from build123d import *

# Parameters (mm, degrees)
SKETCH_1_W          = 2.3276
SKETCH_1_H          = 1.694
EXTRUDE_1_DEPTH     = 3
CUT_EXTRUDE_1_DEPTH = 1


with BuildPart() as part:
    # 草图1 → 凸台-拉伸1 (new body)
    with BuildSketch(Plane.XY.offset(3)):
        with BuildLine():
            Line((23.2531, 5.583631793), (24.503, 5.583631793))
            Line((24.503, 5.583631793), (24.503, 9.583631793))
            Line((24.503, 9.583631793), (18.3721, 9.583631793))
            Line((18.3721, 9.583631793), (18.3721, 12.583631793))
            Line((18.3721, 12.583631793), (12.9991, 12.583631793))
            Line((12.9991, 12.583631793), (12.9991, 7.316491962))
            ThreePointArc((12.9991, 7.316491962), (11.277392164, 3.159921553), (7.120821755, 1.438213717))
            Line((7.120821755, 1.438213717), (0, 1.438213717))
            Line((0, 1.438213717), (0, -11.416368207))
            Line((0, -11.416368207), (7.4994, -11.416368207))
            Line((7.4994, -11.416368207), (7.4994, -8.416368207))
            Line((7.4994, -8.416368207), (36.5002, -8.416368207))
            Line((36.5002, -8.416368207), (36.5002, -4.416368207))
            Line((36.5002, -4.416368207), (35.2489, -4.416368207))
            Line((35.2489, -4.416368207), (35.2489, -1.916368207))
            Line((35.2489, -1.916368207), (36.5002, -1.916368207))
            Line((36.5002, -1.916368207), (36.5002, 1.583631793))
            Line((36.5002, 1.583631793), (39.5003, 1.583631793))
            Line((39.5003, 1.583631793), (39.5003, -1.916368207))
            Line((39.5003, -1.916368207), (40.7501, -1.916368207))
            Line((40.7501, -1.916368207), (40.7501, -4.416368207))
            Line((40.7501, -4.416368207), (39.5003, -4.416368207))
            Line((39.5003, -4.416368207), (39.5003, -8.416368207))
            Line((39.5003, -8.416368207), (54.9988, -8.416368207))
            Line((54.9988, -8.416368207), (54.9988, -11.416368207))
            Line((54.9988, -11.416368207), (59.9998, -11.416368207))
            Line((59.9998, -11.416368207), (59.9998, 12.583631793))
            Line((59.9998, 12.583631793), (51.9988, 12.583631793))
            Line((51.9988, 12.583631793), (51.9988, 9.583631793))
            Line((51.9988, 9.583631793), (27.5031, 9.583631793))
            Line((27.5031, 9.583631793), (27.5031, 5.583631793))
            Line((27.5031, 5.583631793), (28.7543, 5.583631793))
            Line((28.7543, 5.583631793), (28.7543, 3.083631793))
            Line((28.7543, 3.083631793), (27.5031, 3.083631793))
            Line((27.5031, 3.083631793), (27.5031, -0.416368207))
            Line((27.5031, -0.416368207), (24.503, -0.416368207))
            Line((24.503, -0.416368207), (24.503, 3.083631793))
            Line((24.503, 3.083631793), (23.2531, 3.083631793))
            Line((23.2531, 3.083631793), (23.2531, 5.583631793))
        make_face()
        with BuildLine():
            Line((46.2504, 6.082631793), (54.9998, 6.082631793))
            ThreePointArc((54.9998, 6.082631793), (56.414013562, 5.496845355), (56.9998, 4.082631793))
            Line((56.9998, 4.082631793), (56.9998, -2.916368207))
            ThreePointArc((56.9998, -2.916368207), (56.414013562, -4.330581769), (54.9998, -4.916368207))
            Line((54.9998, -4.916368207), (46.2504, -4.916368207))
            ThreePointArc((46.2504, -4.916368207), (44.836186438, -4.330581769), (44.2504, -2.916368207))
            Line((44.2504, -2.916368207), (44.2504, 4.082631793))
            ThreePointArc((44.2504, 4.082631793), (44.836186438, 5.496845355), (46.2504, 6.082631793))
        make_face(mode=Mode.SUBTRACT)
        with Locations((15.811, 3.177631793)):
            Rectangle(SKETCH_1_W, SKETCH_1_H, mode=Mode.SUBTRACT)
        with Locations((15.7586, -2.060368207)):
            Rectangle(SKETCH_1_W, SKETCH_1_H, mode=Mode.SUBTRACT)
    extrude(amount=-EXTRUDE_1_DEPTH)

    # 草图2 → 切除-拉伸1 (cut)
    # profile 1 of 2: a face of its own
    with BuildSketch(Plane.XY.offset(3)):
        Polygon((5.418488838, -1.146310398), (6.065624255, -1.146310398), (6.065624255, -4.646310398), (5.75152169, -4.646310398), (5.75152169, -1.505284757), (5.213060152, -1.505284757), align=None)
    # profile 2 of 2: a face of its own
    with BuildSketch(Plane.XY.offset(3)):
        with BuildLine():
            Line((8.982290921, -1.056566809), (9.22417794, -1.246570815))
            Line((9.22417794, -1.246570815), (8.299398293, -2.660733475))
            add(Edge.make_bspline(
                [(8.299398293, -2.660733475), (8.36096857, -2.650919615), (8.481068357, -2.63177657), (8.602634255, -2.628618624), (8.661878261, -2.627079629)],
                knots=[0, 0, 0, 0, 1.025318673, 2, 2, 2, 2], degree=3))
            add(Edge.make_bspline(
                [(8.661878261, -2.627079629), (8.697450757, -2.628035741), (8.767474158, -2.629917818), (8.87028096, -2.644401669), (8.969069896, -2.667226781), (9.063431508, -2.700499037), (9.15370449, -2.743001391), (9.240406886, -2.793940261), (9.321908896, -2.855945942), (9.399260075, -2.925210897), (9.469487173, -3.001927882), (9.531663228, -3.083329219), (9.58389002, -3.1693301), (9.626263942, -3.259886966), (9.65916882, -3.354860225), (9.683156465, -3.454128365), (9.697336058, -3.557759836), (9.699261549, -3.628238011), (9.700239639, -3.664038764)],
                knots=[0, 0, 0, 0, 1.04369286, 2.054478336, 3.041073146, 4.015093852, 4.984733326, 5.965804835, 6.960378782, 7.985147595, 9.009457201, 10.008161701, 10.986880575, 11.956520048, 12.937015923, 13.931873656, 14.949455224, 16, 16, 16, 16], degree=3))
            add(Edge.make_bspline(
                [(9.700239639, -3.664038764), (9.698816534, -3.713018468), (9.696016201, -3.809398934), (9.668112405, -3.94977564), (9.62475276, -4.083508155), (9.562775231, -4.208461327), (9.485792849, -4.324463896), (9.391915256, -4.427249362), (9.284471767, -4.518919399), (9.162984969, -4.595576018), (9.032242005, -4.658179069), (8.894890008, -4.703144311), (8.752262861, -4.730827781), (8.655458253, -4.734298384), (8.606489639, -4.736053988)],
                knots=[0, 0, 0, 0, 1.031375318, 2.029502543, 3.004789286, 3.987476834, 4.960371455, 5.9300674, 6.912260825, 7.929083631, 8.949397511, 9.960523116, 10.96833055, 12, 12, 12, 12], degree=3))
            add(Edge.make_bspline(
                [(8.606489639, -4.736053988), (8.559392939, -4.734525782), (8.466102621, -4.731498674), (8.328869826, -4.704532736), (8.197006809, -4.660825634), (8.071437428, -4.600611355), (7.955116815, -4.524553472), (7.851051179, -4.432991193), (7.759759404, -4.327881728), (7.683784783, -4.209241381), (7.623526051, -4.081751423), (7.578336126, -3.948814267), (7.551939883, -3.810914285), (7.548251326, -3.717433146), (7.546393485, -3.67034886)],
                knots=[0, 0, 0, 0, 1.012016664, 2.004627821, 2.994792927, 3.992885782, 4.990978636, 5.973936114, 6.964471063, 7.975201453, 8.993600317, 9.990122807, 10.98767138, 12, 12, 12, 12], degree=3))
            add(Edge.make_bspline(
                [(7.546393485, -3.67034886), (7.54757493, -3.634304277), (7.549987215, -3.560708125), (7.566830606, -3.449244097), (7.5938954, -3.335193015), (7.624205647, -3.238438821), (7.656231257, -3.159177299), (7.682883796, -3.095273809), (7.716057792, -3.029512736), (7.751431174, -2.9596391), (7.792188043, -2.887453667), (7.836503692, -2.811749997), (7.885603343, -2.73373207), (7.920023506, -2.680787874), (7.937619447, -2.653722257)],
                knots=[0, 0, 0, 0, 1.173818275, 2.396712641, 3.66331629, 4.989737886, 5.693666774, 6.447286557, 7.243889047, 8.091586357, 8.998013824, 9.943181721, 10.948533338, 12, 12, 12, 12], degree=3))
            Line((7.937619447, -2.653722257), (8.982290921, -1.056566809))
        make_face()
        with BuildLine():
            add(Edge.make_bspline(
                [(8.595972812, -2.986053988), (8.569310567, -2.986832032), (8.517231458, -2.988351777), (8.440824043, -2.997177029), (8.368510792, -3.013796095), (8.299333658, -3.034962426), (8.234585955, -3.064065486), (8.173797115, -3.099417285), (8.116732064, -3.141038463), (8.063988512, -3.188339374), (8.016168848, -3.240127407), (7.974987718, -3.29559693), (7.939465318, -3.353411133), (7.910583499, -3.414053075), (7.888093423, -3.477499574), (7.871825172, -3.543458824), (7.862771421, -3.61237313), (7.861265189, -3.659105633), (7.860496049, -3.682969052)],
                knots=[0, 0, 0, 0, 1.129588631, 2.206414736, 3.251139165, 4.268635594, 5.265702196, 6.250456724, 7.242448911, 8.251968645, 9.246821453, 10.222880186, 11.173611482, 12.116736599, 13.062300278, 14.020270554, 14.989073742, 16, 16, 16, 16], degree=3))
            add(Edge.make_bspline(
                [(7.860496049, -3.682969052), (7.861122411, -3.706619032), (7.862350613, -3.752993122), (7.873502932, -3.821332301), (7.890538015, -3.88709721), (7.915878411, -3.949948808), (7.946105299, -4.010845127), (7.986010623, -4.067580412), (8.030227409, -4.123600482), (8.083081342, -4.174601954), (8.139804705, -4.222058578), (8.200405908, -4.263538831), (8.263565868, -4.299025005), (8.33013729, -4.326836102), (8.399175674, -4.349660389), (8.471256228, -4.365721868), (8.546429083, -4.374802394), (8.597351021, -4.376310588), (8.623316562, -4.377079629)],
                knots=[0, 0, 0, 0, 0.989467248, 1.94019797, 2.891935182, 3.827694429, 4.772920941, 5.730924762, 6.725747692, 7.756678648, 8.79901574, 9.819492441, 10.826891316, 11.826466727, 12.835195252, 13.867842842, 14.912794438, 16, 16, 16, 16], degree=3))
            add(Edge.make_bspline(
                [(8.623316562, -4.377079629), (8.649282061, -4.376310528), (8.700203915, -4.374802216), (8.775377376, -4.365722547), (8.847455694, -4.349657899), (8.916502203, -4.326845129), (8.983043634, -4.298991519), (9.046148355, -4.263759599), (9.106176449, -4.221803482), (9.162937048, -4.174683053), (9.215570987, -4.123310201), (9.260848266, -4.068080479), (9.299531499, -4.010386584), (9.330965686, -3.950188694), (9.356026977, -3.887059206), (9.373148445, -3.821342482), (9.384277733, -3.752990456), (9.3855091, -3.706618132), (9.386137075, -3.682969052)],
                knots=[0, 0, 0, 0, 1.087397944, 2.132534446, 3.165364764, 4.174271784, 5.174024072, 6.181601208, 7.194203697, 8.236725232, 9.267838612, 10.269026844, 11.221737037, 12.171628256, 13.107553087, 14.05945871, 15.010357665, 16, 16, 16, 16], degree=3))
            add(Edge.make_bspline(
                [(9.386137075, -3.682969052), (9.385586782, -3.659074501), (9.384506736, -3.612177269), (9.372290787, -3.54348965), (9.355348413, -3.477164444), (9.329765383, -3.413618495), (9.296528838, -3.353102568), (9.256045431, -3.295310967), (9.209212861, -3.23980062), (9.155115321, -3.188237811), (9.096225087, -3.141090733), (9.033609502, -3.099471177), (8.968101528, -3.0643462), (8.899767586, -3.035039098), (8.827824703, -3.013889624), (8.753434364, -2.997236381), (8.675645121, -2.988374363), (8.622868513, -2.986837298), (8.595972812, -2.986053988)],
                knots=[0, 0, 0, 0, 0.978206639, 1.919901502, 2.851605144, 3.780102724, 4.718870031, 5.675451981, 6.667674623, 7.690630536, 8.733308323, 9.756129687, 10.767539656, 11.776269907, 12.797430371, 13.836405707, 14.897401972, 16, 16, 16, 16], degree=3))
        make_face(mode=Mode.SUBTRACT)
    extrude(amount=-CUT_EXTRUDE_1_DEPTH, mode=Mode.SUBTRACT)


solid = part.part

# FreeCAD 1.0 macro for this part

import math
import FreeCAD as App
import Part
import Sketcher
Q = App.Units.Quantity


def add_polygon(sketch, points):
    """Adds a closed chain of lines whose ends are joined by coincident constraints."""
    first, n = sketch.GeometryCount, len(points)
    for a, b in zip(points, points[1:] + points[:1]):
        sketch.addGeometry(Part.LineSegment(App.Vector(*a, 0), App.Vector(*b, 0)), False)
    for i in range(n):
        sketch.addConstraint(Sketcher.Constraint("Coincident", first + i, 2, first + (i + 1) % n, 1))

doc = App.newDocument("Part")
params = doc.addObject("Spreadsheet::Sheet", "Params")
for row, (alias, value) in enumerate([
    ("sketch1_radius", "2 mm"),
    ("sketch1_height", "4 mm"),
    ("sketch1_height2", "3 mm"),
    ("sketch1_height3", "24 mm"),
    ("sketch1_height4", "2.5 mm"),
    ("pad1_length", "3 mm"),
    ("sketch2_height", "3.5 mm"),
    ("pocket1_length", "1 mm"),
], start=1):
    params.set(f"A{row}", alias)
    params.set(f"B{row}", "=" + value)
    params.setAlias(f"B{row}", alias)

body = doc.addObject("PartDesign::Body", "Body")

# Sketch on XY plane
sketch1 = body.newObject("Sketcher::SketchObject", "Sketch")
sketch1.AttachmentSupport = (doc.getObject("XY_Plane"), [""])
sketch1.MapMode = "FlatFace"
sketch1.AttachmentOffset = App.Placement(App.Vector(0, 0, 3), App.Rotation())
sketch1.addGeometry(Part.LineSegment(App.Vector(23.3, 5.6, 0), App.Vector(24.5, 5.6, 0)), False)  # 0
sketch1.addGeometry(Part.LineSegment(App.Vector(24.5, 5.6, 0), App.Vector(24.5, 9.6, 0)), False)  # 1
sketch1.addGeometry(Part.LineSegment(App.Vector(24.5, 9.6, 0), App.Vector(18.4, 9.6, 0)), False)  # 2
sketch1.addGeometry(Part.LineSegment(App.Vector(18.4, 9.6, 0), App.Vector(18.4, 12.6, 0)), False)  # 3
sketch1.addGeometry(Part.LineSegment(App.Vector(18.4, 12.6, 0), App.Vector(13, 12.6, 0)), False)  # 4
sketch1.addGeometry(Part.LineSegment(App.Vector(13, 12.6, 0), App.Vector(13, 7.3, 0)), False)  # 5
sketch1.addGeometry(Part.ArcOfCircle(Part.Circle(App.Vector(7.1, 7.3, 0), App.Vector(0, 0, 1), 5.9), math.radians(-90), math.radians(0)), False)  # 6
sketch1.addGeometry(Part.LineSegment(App.Vector(7.1, 1.4, 0), App.Vector(0, 1.4, 0)), False)  # 7
sketch1.addGeometry(Part.LineSegment(App.Vector(0, 1.4, 0), App.Vector(0, -11.4, 0)), False)  # 8
sketch1.addGeometry(Part.LineSegment(App.Vector(0, -11.4, 0), App.Vector(7.5, -11.4, 0)), False)  # 9
sketch1.addGeometry(Part.LineSegment(App.Vector(7.5, -11.4, 0), App.Vector(7.5, -8.4, 0)), False)  # 10
sketch1.addGeometry(Part.LineSegment(App.Vector(7.5, -8.4, 0), App.Vector(36.5, -8.4, 0)), False)  # 11
sketch1.addGeometry(Part.LineSegment(App.Vector(36.5, -8.4, 0), App.Vector(36.5, -4.4, 0)), False)  # 12
sketch1.addGeometry(Part.LineSegment(App.Vector(36.5, -4.4, 0), App.Vector(35.2, -4.4, 0)), False)  # 13
sketch1.addGeometry(Part.LineSegment(App.Vector(35.2, -4.4, 0), App.Vector(35.2, -1.9, 0)), False)  # 14
sketch1.addGeometry(Part.LineSegment(App.Vector(35.2, -1.9, 0), App.Vector(36.5, -1.9, 0)), False)  # 15
sketch1.addGeometry(Part.LineSegment(App.Vector(36.5, -1.9, 0), App.Vector(36.5, 1.6, 0)), False)  # 16
sketch1.addGeometry(Part.LineSegment(App.Vector(36.5, 1.6, 0), App.Vector(39.5, 1.6, 0)), False)  # 17
sketch1.addGeometry(Part.LineSegment(App.Vector(39.5, 1.6, 0), App.Vector(39.5, -1.9, 0)), False)  # 18
sketch1.addGeometry(Part.LineSegment(App.Vector(39.5, -1.9, 0), App.Vector(40.8, -1.9, 0)), False)  # 19
sketch1.addGeometry(Part.LineSegment(App.Vector(40.8, -1.9, 0), App.Vector(40.8, -4.4, 0)), False)  # 20
sketch1.addGeometry(Part.LineSegment(App.Vector(40.8, -4.4, 0), App.Vector(39.5, -4.4, 0)), False)  # 21
sketch1.addGeometry(Part.LineSegment(App.Vector(39.5, -4.4, 0), App.Vector(39.5, -8.4, 0)), False)  # 22
sketch1.addGeometry(Part.LineSegment(App.Vector(39.5, -8.4, 0), App.Vector(55, -8.4, 0)), False)  # 23
sketch1.addGeometry(Part.LineSegment(App.Vector(55, -8.4, 0), App.Vector(55, -11.4, 0)), False)  # 24
sketch1.addGeometry(Part.LineSegment(App.Vector(55, -11.4, 0), App.Vector(60, -11.4, 0)), False)  # 25
sketch1.addGeometry(Part.LineSegment(App.Vector(60, -11.4, 0), App.Vector(60, 12.6, 0)), False)  # 26
sketch1.addGeometry(Part.LineSegment(App.Vector(60, 12.6, 0), App.Vector(52, 12.6, 0)), False)  # 27
sketch1.addGeometry(Part.LineSegment(App.Vector(52, 12.6, 0), App.Vector(52, 9.6, 0)), False)  # 28
sketch1.addGeometry(Part.LineSegment(App.Vector(52, 9.6, 0), App.Vector(27.5, 9.6, 0)), False)  # 29
sketch1.addGeometry(Part.LineSegment(App.Vector(27.5, 9.6, 0), App.Vector(27.5, 5.6, 0)), False)  # 30
sketch1.addGeometry(Part.LineSegment(App.Vector(27.5, 5.6, 0), App.Vector(28.8, 5.6, 0)), False)  # 31
sketch1.addGeometry(Part.LineSegment(App.Vector(28.8, 5.6, 0), App.Vector(28.8, 3.1, 0)), False)  # 32
sketch1.addGeometry(Part.LineSegment(App.Vector(28.8, 3.1, 0), App.Vector(27.5, 3.1, 0)), False)  # 33
sketch1.addGeometry(Part.LineSegment(App.Vector(27.5, 3.1, 0), App.Vector(27.5, -0.4, 0)), False)  # 34
sketch1.addGeometry(Part.LineSegment(App.Vector(27.5, -0.4, 0), App.Vector(24.5, -0.4, 0)), False)  # 35
sketch1.addGeometry(Part.LineSegment(App.Vector(24.5, -0.4, 0), App.Vector(24.5, 3.1, 0)), False)  # 36
sketch1.addGeometry(Part.LineSegment(App.Vector(24.5, 3.1, 0), App.Vector(23.3, 3.1, 0)), False)  # 37
sketch1.addGeometry(Part.LineSegment(App.Vector(23.3, 3.1, 0), App.Vector(23.3, 5.6, 0)), False)  # 38
add_polygon(sketch1, [(16.9, -2.9), (14.6, -2.9), (14.6, -1.2), (16.9, -1.2)])  # lines 39-42
add_polygon(sketch1, [(17, 2.3), (14.6, 2.3), (14.6, 4), (17, 4)])  # lines 43-46
sketch1.addGeometry(Part.ArcOfCircle(Part.Circle(App.Vector(46.3, 4.1, 0), App.Vector(0, 0, 1), 2), math.radians(90), math.radians(180)), False)  # 47
sketch1.addGeometry(Part.LineSegment(App.Vector(46.3, 6.1, 0), App.Vector(55, 6.1, 0)), False)  # 48
sketch1.addGeometry(Part.ArcOfCircle(Part.Circle(App.Vector(55, 4.1, 0), App.Vector(0, 0, 1), 2), math.radians(0), math.radians(90)), False)  # 49
sketch1.addGeometry(Part.LineSegment(App.Vector(57, 4.1, 0), App.Vector(57, -2.9, 0)), False)  # 50
sketch1.addGeometry(Part.ArcOfCircle(Part.Circle(App.Vector(55, -2.9, 0), App.Vector(0, 0, 1), 2), math.radians(-90), math.radians(0)), False)  # 51
sketch1.addGeometry(Part.LineSegment(App.Vector(55, -4.9, 0), App.Vector(46.3, -4.9, 0)), False)  # 52
sketch1.addGeometry(Part.ArcOfCircle(Part.Circle(App.Vector(46.3, -2.9, 0), App.Vector(0, 0, 1), 2), math.radians(-180), math.radians(-90)), False)  # 53
sketch1.addGeometry(Part.LineSegment(App.Vector(44.3, -2.9, 0), App.Vector(44.3, 4.1, 0)), False)  # 54
sketch1.addConstraint([
    Sketcher.Constraint("Coincident", 0, 2, 1, 1),
    Sketcher.Constraint("Coincident", 1, 2, 2, 1),
    Sketcher.Constraint("Coincident", 2, 2, 3, 1),
    Sketcher.Constraint("Coincident", 3, 2, 4, 1),
    Sketcher.Constraint("Coincident", 4, 2, 5, 1),
    Sketcher.Constraint("Tangent", 5, 2, 6, 2),
    Sketcher.Constraint("Tangent", 6, 1, 7, 1),
    Sketcher.Constraint("Coincident", 7, 2, 8, 1),
    Sketcher.Constraint("Coincident", 8, 2, 9, 1),
    Sketcher.Constraint("Coincident", 9, 2, 10, 1),
    Sketcher.Constraint("Coincident", 10, 2, 11, 1),
    Sketcher.Constraint("Coincident", 11, 2, 12, 1),
    Sketcher.Constraint("Coincident", 12, 2, 13, 1),
    Sketcher.Constraint("Coincident", 13, 2, 14, 1),
    Sketcher.Constraint("Coincident", 14, 2, 15, 1),
    Sketcher.Constraint("Coincident", 15, 2, 16, 1),
    Sketcher.Constraint("Coincident", 16, 2, 17, 1),
    Sketcher.Constraint("Coincident", 17, 2, 18, 1),
    Sketcher.Constraint("Coincident", 18, 2, 19, 1),
    Sketcher.Constraint("Coincident", 19, 2, 20, 1),
    Sketcher.Constraint("Coincident", 20, 2, 21, 1),
    Sketcher.Constraint("Coincident", 21, 2, 22, 1),
    Sketcher.Constraint("Coincident", 22, 2, 23, 1),
    Sketcher.Constraint("Coincident", 23, 2, 24, 1),
    Sketcher.Constraint("Coincident", 24, 2, 25, 1),
    Sketcher.Constraint("Coincident", 25, 2, 26, 1),
    Sketcher.Constraint("Coincident", 26, 2, 27, 1),
    Sketcher.Constraint("Coincident", 27, 2, 28, 1),
    Sketcher.Constraint("Coincident", 28, 2, 29, 1),
    Sketcher.Constraint("Coincident", 29, 2, 30, 1),
    Sketcher.Constraint("Coincident", 30, 2, 31, 1),
    Sketcher.Constraint("Coincident", 31, 2, 32, 1),
    Sketcher.Constraint("Coincident", 32, 2, 33, 1),
    Sketcher.Constraint("Coincident", 33, 2, 34, 1),
    Sketcher.Constraint("Coincident", 34, 2, 35, 1),
    Sketcher.Constraint("Coincident", 35, 2, 36, 1),
    Sketcher.Constraint("Coincident", 36, 2, 37, 1),
    Sketcher.Constraint("Coincident", 37, 2, 38, 1),
    Sketcher.Constraint("Coincident", 38, 2, 0, 1),
    Sketcher.Constraint("Tangent", 47, 1, 48, 1),
    Sketcher.Constraint("Tangent", 48, 2, 49, 2),
    Sketcher.Constraint("Tangent", 49, 1, 50, 1),
    Sketcher.Constraint("Tangent", 50, 2, 51, 2),
    Sketcher.Constraint("Tangent", 51, 1, 52, 1),
    Sketcher.Constraint("Tangent", 52, 2, 53, 2),
    Sketcher.Constraint("Tangent", 53, 1, 54, 1),
    Sketcher.Constraint("Tangent", 54, 2, 47, 2),
    Sketcher.Constraint("Horizontal", 0),
    Sketcher.Constraint("Vertical", 1),
    Sketcher.Constraint("Horizontal", 2),
    Sketcher.Constraint("Vertical", 3),
    Sketcher.Constraint("Horizontal", 4),
    Sketcher.Constraint("Vertical", 5),
    Sketcher.Constraint("Horizontal", 7),
    Sketcher.Constraint("Vertical", 8),
    Sketcher.Constraint("Horizontal", 9),
    Sketcher.Constraint("Vertical", 10),
    Sketcher.Constraint("Horizontal", 11),
    Sketcher.Constraint("Vertical", 12),
    Sketcher.Constraint("Horizontal", 13),
    Sketcher.Constraint("Vertical", 14),
    Sketcher.Constraint("Horizontal", 15),
    Sketcher.Constraint("Vertical", 16),
    Sketcher.Constraint("Horizontal", 17),
    Sketcher.Constraint("Vertical", 18),
    Sketcher.Constraint("Horizontal", 19),
    Sketcher.Constraint("Vertical", 20),
    Sketcher.Constraint("Horizontal", 21),
    Sketcher.Constraint("Vertical", 22),
    Sketcher.Constraint("Horizontal", 23),
    Sketcher.Constraint("Vertical", 24),
    Sketcher.Constraint("Horizontal", 25),
    Sketcher.Constraint("Vertical", 26),
    Sketcher.Constraint("Horizontal", 27),
    Sketcher.Constraint("Vertical", 28),
    Sketcher.Constraint("Horizontal", 29),
    Sketcher.Constraint("Vertical", 30),
    Sketcher.Constraint("Horizontal", 31),
    Sketcher.Constraint("Vertical", 32),
    Sketcher.Constraint("Horizontal", 33),
    Sketcher.Constraint("Vertical", 34),
    Sketcher.Constraint("Horizontal", 35),
    Sketcher.Constraint("Vertical", 36),
    Sketcher.Constraint("Horizontal", 37),
    Sketcher.Constraint("Vertical", 38),
    Sketcher.Constraint("Horizontal", 39),
    Sketcher.Constraint("Vertical", 40),
    Sketcher.Constraint("Horizontal", 41),
    Sketcher.Constraint("Vertical", 42),
    Sketcher.Constraint("Horizontal", 43),
    Sketcher.Constraint("Vertical", 44),
    Sketcher.Constraint("Horizontal", 45),
    Sketcher.Constraint("Vertical", 46),
    Sketcher.Constraint("Horizontal", 48),
    Sketcher.Constraint("Vertical", 50),
    Sketcher.Constraint("Horizontal", 52),
    Sketcher.Constraint("Vertical", 54),
    Sketcher.Constraint("Equal", 47, 49),
    Sketcher.Constraint("Equal", 49, 51),
    Sketcher.Constraint("Equal", 51, 53),
    Sketcher.Constraint("PointOnObject", 7, 2, -2),
    Sketcher.Constraint("Horizontal", 15, 2, 18, 2),
    Sketcher.Constraint("Horizontal", 13, 2, 20, 2),
    Sketcher.Constraint("Horizontal", 11, 2, 22, 2),
    Sketcher.Constraint("Horizontal", 9, 2, 24, 2),
    Sketcher.Constraint("Horizontal", 4, 2, 26, 2),
    Sketcher.Constraint("Horizontal", 2, 2, 28, 2),
    Sketcher.Constraint("Horizontal", 0, 2, 30, 2),
    Sketcher.Constraint("Horizontal", 33, 2, 36, 2),
    Sketcher.Constraint("Vertical", 12, 2, 15, 2),
    Sketcher.Constraint("Vertical", 18, 2, 21, 2),
    Sketcher.Constraint("Vertical", 30, 2, 33, 2),
    Sketcher.Constraint("Vertical", 1, 2, 35, 2),
    Sketcher.Constraint("Equal", 17, 35),
    Sketcher.Constraint("Equal", 41, 43),
    Sketcher.Constraint("Equal", 3, 10),
    Sketcher.Constraint("Equal", 1, 12),
    Sketcher.Constraint("Equal", 20, 32),
    Sketcher.Constraint("Equal", 18, 34),
    Sketcher.Constraint("Equal", 42, 44),
    Sketcher.Constraint("Radius", 47, Q("2 mm")),
    Sketcher.Constraint("DistanceY", 1, 1, 1, 2, Q("4 mm")),
    Sketcher.Constraint("DistanceY", 3, 1, 3, 2, Q("3 mm")),
    Sketcher.Constraint("DistanceY", 26, 1, 26, 2, Q("24 mm")),
    Sketcher.Constraint("DistanceY", 14, 1, 14, 2, Q("2.5 mm")),
    Sketcher.Constraint("DistanceY", 16, 1, 16, 2, Q("3.5 mm")),
    Sketcher.Constraint("DistanceY", 53, 3, 14, 2, Q("1 mm")),
    Sketcher.Constraint("DistanceX", 51, 3, 25, 2, Q("5 mm")),
    Sketcher.Constraint("DistanceX", 4, 2, 4, 1, Q("5.373 mm")),
    Sketcher.Constraint("DistanceX", 25, 1, 25, 2, Q("5.001 mm")),
    Sketcher.Constraint("DistanceX", 27, 2, 27, 1, Q("8.001 mm")),
    Sketcher.Constraint("DistanceY", 40, 1, 40, 2, Q("1.694 mm")),
    Sketcher.Constraint("DistanceY", 50, 2, 50, 1, Q("6.999 mm")),
    Sketcher.Constraint("Radius", 6, Q("5.878278 mm")),
    Sketcher.Constraint("DistanceX", 37, 2, 33, 2, Q("4.25 mm")),
    Sketcher.Constraint("DistanceX", 40, 2, 46, 2, Q("2.38 mm")),
    Sketcher.Constraint("DistanceX", 0, 1, 0, 2, Q("1.2499 mm")),
    Sketcher.Constraint("DistanceX", 2, 2, 2, 1, Q("6.1309 mm")),
    Sketcher.Constraint("DistanceX", 9, 1, 9, 2, Q("7.4994 mm")),
    Sketcher.Constraint("DistanceX", 11, 1, 11, 2, Q("29.0008 mm")),
    Sketcher.Constraint("DistanceX", 13, 2, 13, 1, Q("1.2513 mm")),
    Sketcher.Constraint("DistanceX", 19, 1, 19, 2, Q("1.2498 mm")),
    Sketcher.Constraint("DistanceX", 23, 1, 23, 2, Q("15.4985 mm")),
    Sketcher.Constraint("DistanceX", 29, 2, 29, 1, Q("24.4957 mm")),
    Sketcher.Constraint("DistanceX", 31, 1, 31, 2, Q("1.2512 mm")),
    Sketcher.Constraint("DistanceX", 39, 2, 39, 1, Q("2.3276 mm")),
    Sketcher.Constraint("DistanceX", 48, 1, 48, 2, Q("8.7494 mm")),
    Sketcher.Constraint("DistanceY", 10, 2, 39, 2, Q("5.509 mm")),
    Sketcher.Constraint("DistanceY", 40, 2, 43, 2, Q("3.544 mm")),
    Sketcher.Constraint("DistanceY", 5, 2, 5, 1, Q("5.26714 mm")),
    Sketcher.Constraint("DistanceX", -1, 1, 39, 2, Q("14.5948 mm")),
    Sketcher.Constraint("DistanceY", -1, 1, 6, 3, Q("7.316492 mm")),
])
sketch1.setExpression("Constraints[128]", "Params.sketch1_radius")
sketch1.setExpression("Constraints[129]", "Params.sketch1_height")
sketch1.setExpression("Constraints[130]", "Params.sketch1_height2")
sketch1.setExpression("Constraints[131]", "Params.sketch1_height3")
sketch1.setExpression("Constraints[132]", "Params.sketch1_height4")
pad1 = body.newObject("PartDesign::Pad", "Pad")
pad1.Profile = sketch1
pad1.setExpression("Length", "Params.pad1_length")
pad1.Reversed = True

# Sketch on XY plane
sketch2 = body.newObject("Sketcher::SketchObject", "Sketch001")
sketch2.AttachmentSupport = (doc.getObject("XY_Plane"), [""])
sketch2.MapMode = "FlatFace"
sketch2.AttachmentOffset = App.Placement(App.Vector(0, 0, 3), App.Rotation())
add_polygon(sketch2, [(6.065624, -1.14631), (5.418489, -1.14631), (5.21306, -1.505285), (5.751522, -1.505285), (5.751522, -4.64631), (6.065624, -4.64631)])  # lines 0-5
sketch2.addGeometry(Part.LineSegment(App.Vector(9.224178, -1.246571, 0), App.Vector(8.982291, -1.056567, 0)), False)  # 6
sketch2.addGeometry(Part.LineSegment(App.Vector(8.982291, -1.056567, 0), App.Vector(7.937619, -2.653722, 0)), False)  # 7
sketch2.addGeometry(Part.BSplineCurve([App.Vector(7.546393, -3.670349, 0), App.Vector(7.547575, -3.634304, 0), App.Vector(7.549987, -3.560708, 0), App.Vector(7.566831, -3.449244, 0), App.Vector(7.593895, -3.335193, 0), App.Vector(7.624206, -3.238439, 0), App.Vector(7.656231, -3.159177, 0), App.Vector(7.682884, -3.095274, 0), App.Vector(7.716058, -3.029513, 0), App.Vector(7.751431, -2.959639, 0), App.Vector(7.792188, -2.887454, 0), App.Vector(7.836504, -2.81175, 0), App.Vector(7.885603, -2.733732, 0), App.Vector(7.920024, -2.680788, 0), App.Vector(7.937619, -2.653722, 0)], [4, 1, 1, 1, 1, 1, 1, 1, 1, 1, 1, 1, 4], [0, 1.173818275, 2.396712641, 3.66331629, 4.989737886, 5.693666774, 6.447286557, 7.243889047, 8.091586357, 8.998013824, 9.943181721, 10.948533338, 12], False, 3, [1, 1, 1, 1, 1, 1, 1, 1, 1, 1, 1, 1, 1, 1, 1], False), False)  # 8
sketch2.addGeometry(Part.BSplineCurve([App.Vector(8.60649, -4.736054, 0), App.Vector(8.559393, -4.734526, 0), App.Vector(8.466103, -4.731499, 0), App.Vector(8.32887, -4.704533, 0), App.Vector(8.197007, -4.660826, 0), App.Vector(8.071437, -4.600611, 0), App.Vector(7.955117, -4.524553, 0), App.Vector(7.851051, -4.432991, 0), App.Vector(7.759759, -4.327882, 0), App.Vector(7.683785, -4.209241, 0), App.Vector(7.623526, -4.081751, 0), App.Vector(7.578336, -3.948814, 0), App.Vector(7.55194, -3.810914, 0), App.Vector(7.548251, -3.717433, 0), App.Vector(7.546393, -3.670349, 0)], [4, 1, 1, 1, 1, 1, 1, 1, 1, 1, 1, 1, 4], [0, 1.012016664, 2.004627821, 2.994792927, 3.992885782, 4.990978636, 5.973936114, 6.964471063, 7.975201453, 8.993600317, 9.990122807, 10.98767138, 12], False, 3, [1, 1, 1, 1, 1, 1, 1, 1, 1, 1, 1, 1, 1, 1, 1], False), False)  # 9
sketch2.addGeometry(Part.BSplineCurve([App.Vector(9.70024, -3.664039, 0), App.Vector(9.698817, -3.713018, 0), App.Vector(9.696016, -3.809399, 0), App.Vector(9.668112, -3.949776, 0), App.Vector(9.624753, -4.083508, 0), App.Vector(9.562775, -4.208461, 0), App.Vector(9.485793, -4.324464, 0), App.Vector(9.391915, -4.427249, 0), App.Vector(9.284472, -4.518919, 0), App.Vector(9.162985, -4.595576, 0), App.Vector(9.032242, -4.658179, 0), App.Vector(8.89489, -4.703144, 0), App.Vector(8.752263, -4.730828, 0), App.Vector(8.655458, -4.734298, 0), App.Vector(8.60649, -4.736054, 0)], [4, 1, 1, 1, 1, 1, 1, 1, 1, 1, 1, 1, 4], [0, 1.031375318, 2.029502543, 3.004789286, 3.987476834, 4.960371455, 5.9300674, 6.912260825, 7.929083631, 8.949397511, 9.960523116, 10.96833055, 12], False, 3, [1, 1, 1, 1, 1, 1, 1, 1, 1, 1, 1, 1, 1, 1, 1], False), False)  # 10
sketch2.addGeometry(Part.BSplineCurve([App.Vector(8.661878, -2.62708, 0), App.Vector(8.697451, -2.628036, 0), App.Vector(8.767474, -2.629918, 0), App.Vector(8.870281, -2.644402, 0), App.Vector(8.96907, -2.667227, 0), App.Vector(9.063432, -2.700499, 0), App.Vector(9.153704, -2.743001, 0), App.Vector(9.240407, -2.79394, 0), App.Vector(9.321909, -2.855946, 0), App.Vector(9.39926, -2.925211, 0), App.Vector(9.469487, -3.001928, 0), App.Vector(9.531663, -3.083329, 0), App.Vector(9.58389, -3.16933, 0), App.Vector(9.626264, -3.259887, 0), App.Vector(9.659169, -3.35486, 0), App.Vector(9.683156, -3.454128, 0), App.Vector(9.697336, -3.55776, 0), App.Vector(9.699262, -3.628238, 0), App.Vector(9.70024, -3.664039, 0)], [4, 1, 1, 1, 1, 1, 1, 1, 1, 1, 1, 1, 1, 1, 1, 1, 4], [0, 1.04369286, 2.054478336, 3.041073146, 4.015093852, 4.984733326, 5.965804835, 6.960378782, 7.985147595, 9.009457201, 10.008161701, 10.986880575, 11.956520048, 12.937015923, 13.931873656, 14.949455224, 16], False, 3, [1, 1, 1, 1, 1, 1, 1, 1, 1, 1, 1, 1, 1, 1, 1, 1, 1, 1, 1], False), False)  # 11
sketch2.addGeometry(Part.BSplineCurve([App.Vector(8.299398, -2.660733, 0), App.Vector(8.360969, -2.65092, 0), App.Vector(8.481068, -2.631777, 0), App.Vector(8.602634, -2.628619, 0), App.Vector(8.661878, -2.62708, 0)], [4, 1, 4], [0, 1.025318673, 2], False, 3, [1, 1, 1, 1, 1], False), False)  # 12
sketch2.addGeometry(Part.LineSegment(App.Vector(8.299398, -2.660733, 0), App.Vector(9.224178, -1.246571, 0)), False)  # 13
sketch2.addGeometry(Part.BSplineCurve([App.Vector(9.386137, -3.682969, 0), App.Vector(9.385587, -3.659075, 0), App.Vector(9.384507, -3.612177, 0), App.Vector(9.372291, -3.54349, 0), App.Vector(9.355348, -3.477164, 0), App.Vector(9.329765, -3.413618, 0), App.Vector(9.296529, -3.353103, 0), App.Vector(9.256045, -3.295311, 0), App.Vector(9.209213, -3.239801, 0), App.Vector(9.155115, -3.188238, 0), App.Vector(9.096225, -3.141091, 0), App.Vector(9.03361, -3.099471, 0), App.Vector(8.968102, -3.064346, 0), App.Vector(8.899768, -3.035039, 0), App.Vector(8.827825, -3.01389, 0), App.Vector(8.753434, -2.997236, 0), App.Vector(8.675645, -2.988374, 0), App.Vector(8.622869, -2.986837, 0), App.Vector(8.595973, -2.986054, 0)], [4, 1, 1, 1, 1, 1, 1, 1, 1, 1, 1, 1, 1, 1, 1, 1, 4], [0, 0.978206639, 1.919901502, 2.851605144, 3.780102724, 4.718870031, 5.675451981, 6.667674623, 7.690630536, 8.733308323, 9.756129687, 10.767539656, 11.776269907, 12.797430371, 13.836405707, 14.897401972, 16], False, 3, [1, 1, 1, 1, 1, 1, 1, 1, 1, 1, 1, 1, 1, 1, 1, 1, 1, 1, 1], False), False)  # 14
sketch2.addGeometry(Part.BSplineCurve([App.Vector(8.623317, -4.37708, 0), App.Vector(8.649282, -4.376311, 0), App.Vector(8.700204, -4.374802, 0), App.Vector(8.775377, -4.365723, 0), App.Vector(8.847456, -4.349658, 0), App.Vector(8.916502, -4.326845, 0), App.Vector(8.983044, -4.298992, 0), App.Vector(9.046148, -4.26376, 0), App.Vector(9.106176, -4.221803, 0), App.Vector(9.162937, -4.174683, 0), App.Vector(9.215571, -4.12331, 0), App.Vector(9.260848, -4.06808, 0), App.Vector(9.299531, -4.010387, 0), App.Vector(9.330966, -3.950189, 0), App.Vector(9.356027, -3.887059, 0), App.Vector(9.373148, -3.821342, 0), App.Vector(9.384278, -3.75299, 0), App.Vector(9.385509, -3.706618, 0), App.Vector(9.386137, -3.682969, 0)], [4, 1, 1, 1, 1, 1, 1, 1, 1, 1, 1, 1, 1, 1, 1, 1, 4], [0, 1.087397944, 2.132534446, 3.165364764, 4.174271784, 5.174024072, 6.181601208, 7.194203697, 8.236725232, 9.267838612, 10.269026844, 11.221737037, 12.171628256, 13.107553087, 14.05945871, 15.010357665, 16], False, 3, [1, 1, 1, 1, 1, 1, 1, 1, 1, 1, 1, 1, 1, 1, 1, 1, 1, 1, 1], False), False)  # 15
sketch2.addGeometry(Part.BSplineCurve([App.Vector(7.860496, -3.682969, 0), App.Vector(7.861122, -3.706619, 0), App.Vector(7.862351, -3.752993, 0), App.Vector(7.873503, -3.821332, 0), App.Vector(7.890538, -3.887097, 0), App.Vector(7.915878, -3.949949, 0), App.Vector(7.946105, -4.010845, 0), App.Vector(7.986011, -4.06758, 0), App.Vector(8.030227, -4.1236, 0), App.Vector(8.083081, -4.174602, 0), App.Vector(8.139805, -4.222059, 0), App.Vector(8.200406, -4.263539, 0), App.Vector(8.263566, -4.299025, 0), App.Vector(8.330137, -4.326836, 0), App.Vector(8.399176, -4.34966, 0), App.Vector(8.471256, -4.365722, 0), App.Vector(8.546429, -4.374802, 0), App.Vector(8.597351, -4.376311, 0), App.Vector(8.623317, -4.37708, 0)], [4, 1, 1, 1, 1, 1, 1, 1, 1, 1, 1, 1, 1, 1, 1, 1, 4], [0, 0.989467248, 1.94019797, 2.891935182, 3.827694429, 4.772920941, 5.730924762, 6.725747692, 7.756678648, 8.79901574, 9.819492441, 10.826891316, 11.826466727, 12.835195252, 13.867842842, 14.912794438, 16], False, 3, [1, 1, 1, 1, 1, 1, 1, 1, 1, 1, 1, 1, 1, 1, 1, 1, 1, 1, 1], False), False)  # 16
sketch2.addGeometry(Part.BSplineCurve([App.Vector(8.595973, -2.986054, 0), App.Vector(8.569311, -2.986832, 0), App.Vector(8.517231, -2.988352, 0), App.Vector(8.440824, -2.997177, 0), App.Vector(8.368511, -3.013796, 0), App.Vector(8.299334, -3.034962, 0), App.Vector(8.234586, -3.064065, 0), App.Vector(8.173797, -3.099417, 0), App.Vector(8.116732, -3.141038, 0), App.Vector(8.063989, -3.188339, 0), App.Vector(8.016169, -3.240127, 0), App.Vector(7.974988, -3.295597, 0), App.Vector(7.939465, -3.353411, 0), App.Vector(7.910583, -3.414053, 0), App.Vector(7.888093, -3.4775, 0), App.Vector(7.871825, -3.543459, 0), App.Vector(7.862771, -3.612373, 0), App.Vector(7.861265, -3.659106, 0), App.Vector(7.860496, -3.682969, 0)], [4, 1, 1, 1, 1, 1, 1, 1, 1, 1, 1, 1, 1, 1, 1, 1, 4], [0, 1.129588631, 2.206414736, 3.251139165, 4.268635594, 5.265702196, 6.250456724, 7.242448911, 8.251968645, 9.246821453, 10.222880186, 11.173611482, 12.116736599, 13.062300278, 14.020270554, 14.989073742, 16], False, 3, [1, 1, 1, 1, 1, 1, 1, 1, 1, 1, 1, 1, 1, 1, 1, 1, 1, 1, 1], False), False)  # 17
sketch2.addConstraint([
    Sketcher.Constraint("Block", 8),
    Sketcher.Constraint("Block", 9),
    Sketcher.Constraint("Block", 10),
    Sketcher.Constraint("Block", 11),
    Sketcher.Constraint("Block", 12),
    Sketcher.Constraint("Block", 14),
    Sketcher.Constraint("Block", 15),
    Sketcher.Constraint("Block", 16),
    Sketcher.Constraint("Block", 17),
    Sketcher.Constraint("Coincident", 6, 2, 7, 1),
    Sketcher.Constraint("Coincident", 7, 2, 8, 2),
    Sketcher.Constraint("Coincident", 12, 1, 13, 1),
    Sketcher.Constraint("Coincident", 13, 2, 6, 1),
    Sketcher.Constraint("Horizontal", 0),
    Sketcher.Constraint("Horizontal", 2),
    Sketcher.Constraint("Vertical", 3),
    Sketcher.Constraint("Horizontal", 4),
    Sketcher.Constraint("Vertical", 5),
    Sketcher.Constraint("DistanceY", 5, 1, 5, 2, Q("3.5 mm")),
    Sketcher.Constraint("Distance", 1, Q("0.413598 mm")),
    Sketcher.Constraint("DistanceX", 2, 1, 2, 2, Q("0.538462 mm")),
    Sketcher.Constraint("Distance", 6, Q("0.307589 mm")),
    Sketcher.Constraint("DistanceX", 0, 2, 0, 1, Q("0.647135 mm")),
    Sketcher.Constraint("DistanceX", 4, 1, 4, 2, Q("0.314103 mm")),
    Sketcher.Constraint("DistanceX", -1, 1, 0, 2, Q("5.418489 mm")),
    Sketcher.Constraint("DistanceY", 0, 2, -1, 1, Q("1.14631 mm")),
    Sketcher.Constraint("DistanceX", -1, 1, 6, 2, Q("8.982291 mm")),
    Sketcher.Constraint("DistanceY", 13, 2, -1, 1, Q("1.246571 mm")),
    Sketcher.Constraint("DistanceX", 7, 2, 13, 2, Q("1.286558 mm")),
])
sketch2.setExpression("Constraints[24]", "Params.sketch2_height")
pocket1 = body.newObject("PartDesign::Pocket", "Pocket")
pocket1.Profile = sketch2
pocket1.setExpression("Length", "Params.pocket1_length")

doc.recompute()
